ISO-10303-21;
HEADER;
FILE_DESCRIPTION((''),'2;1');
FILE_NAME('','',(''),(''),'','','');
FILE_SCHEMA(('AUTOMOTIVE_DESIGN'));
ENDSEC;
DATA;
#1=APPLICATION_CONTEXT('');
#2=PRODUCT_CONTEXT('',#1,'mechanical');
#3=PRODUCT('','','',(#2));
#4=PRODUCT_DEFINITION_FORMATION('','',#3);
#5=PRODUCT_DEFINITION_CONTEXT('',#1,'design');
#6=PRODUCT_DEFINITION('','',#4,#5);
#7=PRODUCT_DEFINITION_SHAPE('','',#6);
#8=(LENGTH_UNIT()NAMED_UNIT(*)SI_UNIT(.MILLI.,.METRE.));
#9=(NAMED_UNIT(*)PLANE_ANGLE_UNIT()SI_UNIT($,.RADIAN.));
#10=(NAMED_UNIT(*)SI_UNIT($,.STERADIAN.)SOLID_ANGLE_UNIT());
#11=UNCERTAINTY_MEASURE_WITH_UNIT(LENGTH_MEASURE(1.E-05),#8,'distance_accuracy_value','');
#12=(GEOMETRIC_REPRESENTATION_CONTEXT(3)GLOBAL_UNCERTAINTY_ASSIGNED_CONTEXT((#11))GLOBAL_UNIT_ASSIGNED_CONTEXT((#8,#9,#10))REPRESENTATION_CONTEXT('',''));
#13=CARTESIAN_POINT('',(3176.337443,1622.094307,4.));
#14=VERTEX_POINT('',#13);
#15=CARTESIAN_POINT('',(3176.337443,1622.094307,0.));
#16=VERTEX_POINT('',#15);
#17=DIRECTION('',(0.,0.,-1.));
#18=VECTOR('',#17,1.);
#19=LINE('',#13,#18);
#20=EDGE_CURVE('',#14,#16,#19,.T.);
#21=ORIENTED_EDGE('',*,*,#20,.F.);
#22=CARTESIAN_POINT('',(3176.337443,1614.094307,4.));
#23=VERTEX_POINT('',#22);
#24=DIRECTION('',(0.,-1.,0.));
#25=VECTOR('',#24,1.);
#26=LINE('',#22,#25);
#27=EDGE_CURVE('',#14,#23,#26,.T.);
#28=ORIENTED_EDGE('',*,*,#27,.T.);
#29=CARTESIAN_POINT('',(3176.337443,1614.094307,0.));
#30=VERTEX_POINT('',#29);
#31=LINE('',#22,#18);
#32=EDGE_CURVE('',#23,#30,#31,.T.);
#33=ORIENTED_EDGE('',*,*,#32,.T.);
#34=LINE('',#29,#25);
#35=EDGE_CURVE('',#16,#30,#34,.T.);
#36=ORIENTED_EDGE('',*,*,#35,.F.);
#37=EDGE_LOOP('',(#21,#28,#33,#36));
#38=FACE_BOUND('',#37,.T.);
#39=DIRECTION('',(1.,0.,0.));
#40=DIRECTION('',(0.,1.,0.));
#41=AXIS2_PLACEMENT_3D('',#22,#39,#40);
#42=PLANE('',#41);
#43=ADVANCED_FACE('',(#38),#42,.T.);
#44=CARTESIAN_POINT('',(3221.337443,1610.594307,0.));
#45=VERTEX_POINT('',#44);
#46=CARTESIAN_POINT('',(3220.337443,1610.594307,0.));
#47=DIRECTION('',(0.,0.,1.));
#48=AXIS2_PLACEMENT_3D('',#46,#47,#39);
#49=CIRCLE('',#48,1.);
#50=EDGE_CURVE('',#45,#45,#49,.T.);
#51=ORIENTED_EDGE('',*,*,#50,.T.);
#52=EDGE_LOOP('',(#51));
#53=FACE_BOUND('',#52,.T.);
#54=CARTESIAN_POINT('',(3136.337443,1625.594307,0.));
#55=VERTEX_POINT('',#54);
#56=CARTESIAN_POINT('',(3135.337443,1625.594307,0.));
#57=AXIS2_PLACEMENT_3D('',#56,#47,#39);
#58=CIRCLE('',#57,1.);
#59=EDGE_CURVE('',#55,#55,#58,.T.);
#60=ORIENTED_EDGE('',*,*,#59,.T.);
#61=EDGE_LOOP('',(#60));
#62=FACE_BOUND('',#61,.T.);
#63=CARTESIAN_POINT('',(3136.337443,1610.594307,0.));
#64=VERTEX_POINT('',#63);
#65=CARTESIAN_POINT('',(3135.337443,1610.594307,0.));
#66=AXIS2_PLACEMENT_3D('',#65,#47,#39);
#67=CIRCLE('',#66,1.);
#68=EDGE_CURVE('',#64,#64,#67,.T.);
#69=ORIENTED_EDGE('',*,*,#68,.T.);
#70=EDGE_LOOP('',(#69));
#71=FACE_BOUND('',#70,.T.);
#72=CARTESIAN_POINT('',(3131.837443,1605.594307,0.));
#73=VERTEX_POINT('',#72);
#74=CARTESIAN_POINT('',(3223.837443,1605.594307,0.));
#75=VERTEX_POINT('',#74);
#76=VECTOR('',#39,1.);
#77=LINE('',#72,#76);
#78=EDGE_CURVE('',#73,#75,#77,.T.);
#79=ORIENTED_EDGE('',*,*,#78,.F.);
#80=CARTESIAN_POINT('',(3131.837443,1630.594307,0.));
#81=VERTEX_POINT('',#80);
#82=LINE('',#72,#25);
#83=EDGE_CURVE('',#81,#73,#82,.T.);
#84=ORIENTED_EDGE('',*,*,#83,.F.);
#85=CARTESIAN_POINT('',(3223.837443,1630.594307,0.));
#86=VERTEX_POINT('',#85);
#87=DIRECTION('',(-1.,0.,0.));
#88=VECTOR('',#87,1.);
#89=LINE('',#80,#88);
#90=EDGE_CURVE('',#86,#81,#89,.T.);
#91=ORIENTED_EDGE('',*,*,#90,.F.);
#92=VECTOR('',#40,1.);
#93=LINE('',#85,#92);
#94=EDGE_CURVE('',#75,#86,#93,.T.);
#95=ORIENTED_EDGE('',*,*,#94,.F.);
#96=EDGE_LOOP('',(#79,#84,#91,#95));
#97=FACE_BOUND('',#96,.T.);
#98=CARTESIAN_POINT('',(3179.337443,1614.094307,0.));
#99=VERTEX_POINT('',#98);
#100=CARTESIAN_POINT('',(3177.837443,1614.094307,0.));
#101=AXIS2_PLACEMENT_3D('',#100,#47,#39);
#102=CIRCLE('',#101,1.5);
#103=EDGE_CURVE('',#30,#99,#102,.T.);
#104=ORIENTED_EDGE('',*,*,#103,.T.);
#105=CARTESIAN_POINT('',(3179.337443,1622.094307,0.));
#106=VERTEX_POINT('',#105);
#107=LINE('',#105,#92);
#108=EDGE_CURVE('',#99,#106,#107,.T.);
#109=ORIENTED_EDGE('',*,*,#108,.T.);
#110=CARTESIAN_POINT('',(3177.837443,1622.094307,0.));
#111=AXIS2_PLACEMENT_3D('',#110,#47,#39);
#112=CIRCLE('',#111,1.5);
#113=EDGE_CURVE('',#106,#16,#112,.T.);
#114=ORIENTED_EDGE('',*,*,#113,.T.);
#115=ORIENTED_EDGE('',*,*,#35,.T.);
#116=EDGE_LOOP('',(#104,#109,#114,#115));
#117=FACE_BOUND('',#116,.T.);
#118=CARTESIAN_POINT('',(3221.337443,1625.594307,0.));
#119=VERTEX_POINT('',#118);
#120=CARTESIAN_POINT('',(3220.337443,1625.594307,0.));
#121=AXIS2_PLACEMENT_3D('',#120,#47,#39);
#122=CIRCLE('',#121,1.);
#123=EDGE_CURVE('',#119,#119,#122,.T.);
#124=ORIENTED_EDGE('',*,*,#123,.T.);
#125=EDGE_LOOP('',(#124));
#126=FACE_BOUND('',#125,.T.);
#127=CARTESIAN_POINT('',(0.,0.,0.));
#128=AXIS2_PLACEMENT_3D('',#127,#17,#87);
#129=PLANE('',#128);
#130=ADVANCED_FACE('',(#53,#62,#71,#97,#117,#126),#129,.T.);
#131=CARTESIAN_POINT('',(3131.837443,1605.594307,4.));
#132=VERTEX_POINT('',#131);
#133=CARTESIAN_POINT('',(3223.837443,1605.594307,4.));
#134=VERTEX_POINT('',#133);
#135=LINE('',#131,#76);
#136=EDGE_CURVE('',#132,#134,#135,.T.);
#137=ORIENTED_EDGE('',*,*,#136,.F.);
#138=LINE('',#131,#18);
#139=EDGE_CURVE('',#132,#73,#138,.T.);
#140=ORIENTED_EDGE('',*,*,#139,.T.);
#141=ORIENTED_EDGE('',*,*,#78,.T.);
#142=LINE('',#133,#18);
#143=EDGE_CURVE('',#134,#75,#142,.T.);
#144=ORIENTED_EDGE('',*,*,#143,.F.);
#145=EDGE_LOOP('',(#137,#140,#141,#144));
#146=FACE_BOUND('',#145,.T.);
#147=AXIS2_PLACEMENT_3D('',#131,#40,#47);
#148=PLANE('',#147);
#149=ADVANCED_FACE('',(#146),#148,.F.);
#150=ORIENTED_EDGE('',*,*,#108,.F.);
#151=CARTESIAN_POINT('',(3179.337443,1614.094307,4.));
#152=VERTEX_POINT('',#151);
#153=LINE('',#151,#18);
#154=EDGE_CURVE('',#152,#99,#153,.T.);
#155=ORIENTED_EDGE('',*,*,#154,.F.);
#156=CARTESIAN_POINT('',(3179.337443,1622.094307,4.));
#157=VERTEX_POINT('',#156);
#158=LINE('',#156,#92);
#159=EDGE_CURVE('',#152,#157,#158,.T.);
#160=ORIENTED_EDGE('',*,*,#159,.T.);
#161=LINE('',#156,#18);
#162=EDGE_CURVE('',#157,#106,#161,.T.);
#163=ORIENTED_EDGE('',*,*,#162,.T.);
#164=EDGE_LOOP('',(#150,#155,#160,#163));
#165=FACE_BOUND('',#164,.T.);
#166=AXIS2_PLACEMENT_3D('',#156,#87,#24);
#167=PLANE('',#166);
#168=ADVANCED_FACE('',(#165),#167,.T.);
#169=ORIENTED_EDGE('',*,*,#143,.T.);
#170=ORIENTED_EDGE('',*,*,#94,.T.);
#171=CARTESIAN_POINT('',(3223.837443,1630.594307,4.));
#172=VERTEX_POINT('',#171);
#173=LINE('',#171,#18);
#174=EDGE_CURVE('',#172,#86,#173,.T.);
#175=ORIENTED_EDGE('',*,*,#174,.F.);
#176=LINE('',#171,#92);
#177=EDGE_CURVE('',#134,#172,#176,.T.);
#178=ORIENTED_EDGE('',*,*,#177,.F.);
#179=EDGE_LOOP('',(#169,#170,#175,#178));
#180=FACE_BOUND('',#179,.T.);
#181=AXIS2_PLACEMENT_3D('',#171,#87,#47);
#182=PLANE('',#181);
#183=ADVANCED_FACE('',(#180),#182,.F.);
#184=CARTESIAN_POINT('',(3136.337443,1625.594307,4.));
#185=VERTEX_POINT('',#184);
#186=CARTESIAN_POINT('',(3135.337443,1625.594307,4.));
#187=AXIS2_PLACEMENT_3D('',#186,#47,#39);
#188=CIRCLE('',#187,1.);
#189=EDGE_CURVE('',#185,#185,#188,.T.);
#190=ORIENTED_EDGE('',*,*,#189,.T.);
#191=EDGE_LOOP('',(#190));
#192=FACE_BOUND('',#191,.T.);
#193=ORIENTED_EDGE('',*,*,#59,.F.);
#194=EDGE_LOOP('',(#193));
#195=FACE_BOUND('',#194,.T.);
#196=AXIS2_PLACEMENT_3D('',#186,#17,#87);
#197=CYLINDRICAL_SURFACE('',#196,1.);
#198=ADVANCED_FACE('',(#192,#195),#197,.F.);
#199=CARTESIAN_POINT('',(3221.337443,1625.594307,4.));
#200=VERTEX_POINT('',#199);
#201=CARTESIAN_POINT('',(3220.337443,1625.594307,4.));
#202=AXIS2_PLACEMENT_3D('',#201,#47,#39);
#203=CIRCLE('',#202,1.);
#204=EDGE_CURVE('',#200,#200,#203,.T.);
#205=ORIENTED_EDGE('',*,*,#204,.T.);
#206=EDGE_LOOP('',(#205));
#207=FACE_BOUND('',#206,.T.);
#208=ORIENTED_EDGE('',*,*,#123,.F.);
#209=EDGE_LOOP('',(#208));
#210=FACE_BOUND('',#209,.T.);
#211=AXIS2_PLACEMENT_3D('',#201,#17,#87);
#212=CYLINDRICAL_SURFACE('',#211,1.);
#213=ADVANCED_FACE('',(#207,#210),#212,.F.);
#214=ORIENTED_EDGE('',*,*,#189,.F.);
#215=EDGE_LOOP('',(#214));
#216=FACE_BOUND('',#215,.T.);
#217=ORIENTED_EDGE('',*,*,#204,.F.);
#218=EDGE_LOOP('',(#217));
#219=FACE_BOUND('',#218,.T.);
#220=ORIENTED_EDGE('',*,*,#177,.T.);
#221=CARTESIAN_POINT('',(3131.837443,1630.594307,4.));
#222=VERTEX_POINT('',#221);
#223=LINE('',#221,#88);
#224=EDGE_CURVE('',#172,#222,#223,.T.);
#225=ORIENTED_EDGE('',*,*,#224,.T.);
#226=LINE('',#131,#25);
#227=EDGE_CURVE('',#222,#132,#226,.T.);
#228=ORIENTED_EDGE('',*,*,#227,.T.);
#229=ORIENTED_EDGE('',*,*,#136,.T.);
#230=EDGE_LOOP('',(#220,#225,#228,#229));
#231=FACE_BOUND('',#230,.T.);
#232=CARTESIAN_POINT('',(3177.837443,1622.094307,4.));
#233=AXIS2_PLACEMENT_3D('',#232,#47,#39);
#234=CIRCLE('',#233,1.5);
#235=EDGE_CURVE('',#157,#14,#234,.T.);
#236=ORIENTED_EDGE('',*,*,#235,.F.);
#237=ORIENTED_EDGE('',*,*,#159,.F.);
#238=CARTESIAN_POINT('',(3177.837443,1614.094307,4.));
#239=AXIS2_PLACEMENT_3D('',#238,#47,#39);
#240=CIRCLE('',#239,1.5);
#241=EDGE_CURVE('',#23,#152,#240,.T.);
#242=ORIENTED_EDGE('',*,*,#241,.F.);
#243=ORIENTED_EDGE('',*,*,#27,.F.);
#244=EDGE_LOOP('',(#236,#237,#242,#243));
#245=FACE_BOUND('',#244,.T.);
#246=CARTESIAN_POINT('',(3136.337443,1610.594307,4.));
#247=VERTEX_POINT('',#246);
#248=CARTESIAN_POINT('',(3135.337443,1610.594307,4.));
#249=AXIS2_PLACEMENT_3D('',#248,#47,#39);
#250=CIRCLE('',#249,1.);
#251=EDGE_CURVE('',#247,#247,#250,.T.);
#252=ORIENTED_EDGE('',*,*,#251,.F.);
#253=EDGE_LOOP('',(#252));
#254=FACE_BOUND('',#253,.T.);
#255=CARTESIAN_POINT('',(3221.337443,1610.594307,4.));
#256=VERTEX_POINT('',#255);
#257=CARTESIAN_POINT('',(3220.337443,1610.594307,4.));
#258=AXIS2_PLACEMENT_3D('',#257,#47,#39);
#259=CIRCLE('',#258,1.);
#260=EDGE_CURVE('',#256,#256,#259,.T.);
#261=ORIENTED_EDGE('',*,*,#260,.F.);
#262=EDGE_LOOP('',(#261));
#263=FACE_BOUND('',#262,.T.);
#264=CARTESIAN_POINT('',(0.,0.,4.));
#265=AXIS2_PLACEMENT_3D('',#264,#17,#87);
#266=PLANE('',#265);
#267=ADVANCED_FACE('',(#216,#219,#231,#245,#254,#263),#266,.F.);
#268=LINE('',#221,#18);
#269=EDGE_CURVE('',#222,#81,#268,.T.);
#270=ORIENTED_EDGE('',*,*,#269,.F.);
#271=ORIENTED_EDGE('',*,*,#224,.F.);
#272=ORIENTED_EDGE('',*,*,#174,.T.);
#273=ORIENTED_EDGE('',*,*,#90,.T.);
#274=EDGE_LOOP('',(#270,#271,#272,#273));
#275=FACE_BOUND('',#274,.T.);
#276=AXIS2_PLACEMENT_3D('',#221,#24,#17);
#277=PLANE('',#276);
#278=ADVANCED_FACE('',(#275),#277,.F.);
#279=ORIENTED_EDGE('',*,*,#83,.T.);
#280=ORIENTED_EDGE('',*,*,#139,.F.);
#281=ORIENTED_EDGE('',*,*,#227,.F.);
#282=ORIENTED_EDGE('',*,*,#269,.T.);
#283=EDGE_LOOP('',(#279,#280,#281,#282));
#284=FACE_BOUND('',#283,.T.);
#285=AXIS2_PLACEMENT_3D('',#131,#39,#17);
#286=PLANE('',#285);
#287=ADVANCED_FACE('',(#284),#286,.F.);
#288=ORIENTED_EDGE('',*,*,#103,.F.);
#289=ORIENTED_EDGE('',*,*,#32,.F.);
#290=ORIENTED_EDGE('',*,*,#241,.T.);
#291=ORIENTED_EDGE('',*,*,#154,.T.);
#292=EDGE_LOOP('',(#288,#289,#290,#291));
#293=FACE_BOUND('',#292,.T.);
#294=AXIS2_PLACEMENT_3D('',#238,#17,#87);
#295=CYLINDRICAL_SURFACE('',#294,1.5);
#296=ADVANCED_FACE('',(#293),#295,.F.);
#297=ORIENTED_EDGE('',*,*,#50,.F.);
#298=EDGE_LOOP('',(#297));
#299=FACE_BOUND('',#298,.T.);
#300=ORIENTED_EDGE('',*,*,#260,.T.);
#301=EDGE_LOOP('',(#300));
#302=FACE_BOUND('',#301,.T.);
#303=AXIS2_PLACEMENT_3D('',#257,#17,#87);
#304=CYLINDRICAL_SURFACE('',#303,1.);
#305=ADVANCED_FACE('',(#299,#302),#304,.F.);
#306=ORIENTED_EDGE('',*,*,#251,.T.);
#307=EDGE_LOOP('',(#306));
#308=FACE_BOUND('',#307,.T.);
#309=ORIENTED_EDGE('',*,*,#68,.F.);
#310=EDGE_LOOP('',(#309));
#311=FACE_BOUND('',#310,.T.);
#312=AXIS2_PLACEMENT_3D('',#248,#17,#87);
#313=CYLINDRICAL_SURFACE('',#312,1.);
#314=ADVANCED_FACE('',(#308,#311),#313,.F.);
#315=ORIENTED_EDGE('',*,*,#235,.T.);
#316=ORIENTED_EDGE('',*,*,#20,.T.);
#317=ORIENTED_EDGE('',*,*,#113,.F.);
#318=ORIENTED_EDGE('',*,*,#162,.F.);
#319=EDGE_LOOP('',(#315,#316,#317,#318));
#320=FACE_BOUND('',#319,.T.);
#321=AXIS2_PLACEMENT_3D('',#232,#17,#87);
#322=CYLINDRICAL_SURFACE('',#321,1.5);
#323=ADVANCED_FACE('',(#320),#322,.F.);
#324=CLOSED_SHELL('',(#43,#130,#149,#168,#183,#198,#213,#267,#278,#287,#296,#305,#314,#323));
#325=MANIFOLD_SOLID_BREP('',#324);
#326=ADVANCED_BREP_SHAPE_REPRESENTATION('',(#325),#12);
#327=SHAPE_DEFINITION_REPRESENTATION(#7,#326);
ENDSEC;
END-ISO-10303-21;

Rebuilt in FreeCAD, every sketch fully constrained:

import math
import FreeCAD as App
import Part
import Sketcher
from FreeCAD import Vector

doc = App.newDocument("Part")
body = doc.addObject("PartDesign::Body", "Body")

# Sketch on XY plane
sketch1 = body.newObject("Sketcher::SketchObject", "Sketch")
sketch1.AttachmentSupport = (doc.getObject("XY_Plane"), [""])
sketch1.MapMode = "FlatFace"
sketch1.addGeometry([
    Part.LineSegment(Vector(3131.837443, 1630.594307, 0), Vector(3131.837443, 1605.594307, 0)),  # 0
    Part.LineSegment(Vector(3131.837443, 1605.594307, 0), Vector(3223.837443, 1605.594307, 0)),  # 1
    Part.LineSegment(Vector(3223.837443, 1605.594307, 0), Vector(3223.837443, 1630.594307, 0)),  # 2
    Part.LineSegment(Vector(3223.837443, 1630.594307, 0), Vector(3131.837443, 1630.594307, 0)),  # 3
    Part.Circle(Vector(3135.337443, 1610.594307, 0), Vector(0, 0, 1), 1),  # 4
    Part.Circle(Vector(3220.337443, 1610.594307, 0), Vector(0, 0, 1), 1),  # 5
    Part.Circle(Vector(3135.337443, 1625.594307, 0), Vector(0, 0, 1), 1),  # 6
    Part.ArcOfCircle(Part.Circle(Vector(3177.837443, 1622.094307, 0), Vector(0, 0, 1), 1.5), math.radians(0), math.radians(180)),  # 7
    Part.LineSegment(Vector(3179.337443, 1622.094307, 0), Vector(3179.337443, 1614.094307, 0)),  # 8
    Part.ArcOfCircle(Part.Circle(Vector(3177.837443, 1614.094307, 0), Vector(0, 0, 1), 1.5), math.radians(180), math.radians(360)),  # 9
    Part.LineSegment(Vector(3176.337443, 1614.094307, 0), Vector(3176.337443, 1622.094307, 0)),  # 10
    Part.Circle(Vector(3220.337443, 1625.594307, 0), Vector(0, 0, 1), 1),  # 11
], False)
sketch1.addConstraint([
    Sketcher.Constraint("Coincident", 0, 2, 1, 1),
    Sketcher.Constraint("Coincident", 1, 2, 2, 1),
    Sketcher.Constraint("Coincident", 2, 2, 3, 1),
    Sketcher.Constraint("Coincident", 3, 2, 0, 1),
    Sketcher.Constraint("Tangent", 7, 1, 8, 1),
    Sketcher.Constraint("Tangent", 8, 2, 9, 2),
    Sketcher.Constraint("Tangent", 9, 1, 10, 1),
    Sketcher.Constraint("Tangent", 10, 2, 7, 2),
    Sketcher.Constraint("Vertical", 0),
    Sketcher.Constraint("Horizontal", 1),
    Sketcher.Constraint("Vertical", 2),
    Sketcher.Constraint("Horizontal", 3),
    Sketcher.Constraint("Vertical", 8),
    Sketcher.Constraint("Vertical", 10),
    Sketcher.Constraint("Equal", 4, 5),
    Sketcher.Constraint("Equal", 5, 6),
    Sketcher.Constraint("Equal", 6, 11),
    Sketcher.Constraint("Horizontal", 4, 3, 5, 3),
    Sketcher.Constraint("Horizontal", 6, 3, 11, 3),
    Sketcher.Constraint("Vertical", 4, 3, 6, 3),
    Sketcher.Constraint("Vertical", 5, 3, 11, 3),
    Sketcher.Constraint("Diameter", 4, 2.0),
    Sketcher.Constraint("Radius", 7, 1.5),
    Sketcher.Constraint("DistanceX", 1, 1, 1, 2, 92.0),
    Sketcher.Constraint("DistanceY", 0, 2, 0, 1, 25.0),
    Sketcher.Constraint("DistanceY", 8, 2, 8, 1, 8.0),
    Sketcher.Constraint("DistanceX", 4, 3, 5, 3, 85.0),
    Sketcher.Constraint("DistanceY", 4, 3, 6, 3, 15.0),
    Sketcher.Constraint("DistanceY", 0, 2, 4, 3, 5.0),
    Sketcher.Constraint("DistanceX", 0, 2, 9, 3, 46.0),
    Sketcher.Constraint("DistanceX", 7, 1, 11, 3, 41.0),
    Sketcher.Constraint("DistanceY", 7, 3, 6, 3, 3.5),
    Sketcher.Constraint("DistanceX", -1, 1, 4, 3, 3135.337443),
    Sketcher.Constraint("DistanceY", -1, 1, 4, 3, 1610.594307),
])
pad1 = body.newObject("PartDesign::Pad", "Pad")
pad1.Profile = sketch1
pad1.Length = 4

doc.recompute()
